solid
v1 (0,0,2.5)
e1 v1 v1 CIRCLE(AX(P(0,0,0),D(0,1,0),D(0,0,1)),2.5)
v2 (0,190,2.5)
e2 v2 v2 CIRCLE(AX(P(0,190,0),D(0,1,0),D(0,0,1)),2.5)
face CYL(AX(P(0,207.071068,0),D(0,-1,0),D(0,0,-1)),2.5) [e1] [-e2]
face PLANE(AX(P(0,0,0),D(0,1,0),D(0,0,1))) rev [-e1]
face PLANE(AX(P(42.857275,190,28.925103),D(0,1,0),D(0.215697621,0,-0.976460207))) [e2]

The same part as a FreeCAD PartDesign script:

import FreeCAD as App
import Part
import Sketcher
from FreeCAD import Vector
Q = App.Units.Quantity

doc = App.newDocument("Part")
params = doc.addObject("Spreadsheet::Sheet", "Params")
for row, (alias, value) in enumerate([
    ("sketch1_diameter", "5 mm"),
    ("pad1_length", "190 mm"),
], start=1):
    params.set(f"A{row}", alias)
    params.set(f"B{row}", "=" + value)
    params.setAlias(f"B{row}", alias)

body = doc.addObject("PartDesign::Body", "Body")

# Sketch on XZ plane
sketch1 = body.newObject("Sketcher::SketchObject", "Sketch")
sketch1.AttachmentSupport = (doc.getObject("XZ_Plane"), [""])
sketch1.MapMode = "FlatFace"
sketch1.addGeometry(Part.Circle(Vector(0, 0, 0), Vector(0, 0, 1), 2.5), False)
sketch1.addConstraint([
    Sketcher.Constraint("Coincident", 0, 3, -1, 1),
    Sketcher.Constraint("Diameter", 0, Q("5 mm")),
])
sketch1.setExpression("Constraints[1]", "Params.sketch1_diameter")
pad1 = body.newObject("PartDesign::Pad", "Pad")
pad1.Profile = sketch1
pad1.setExpression("Length", "Params.pad1_length")
pad1.Reversed = True

doc.recompute()
